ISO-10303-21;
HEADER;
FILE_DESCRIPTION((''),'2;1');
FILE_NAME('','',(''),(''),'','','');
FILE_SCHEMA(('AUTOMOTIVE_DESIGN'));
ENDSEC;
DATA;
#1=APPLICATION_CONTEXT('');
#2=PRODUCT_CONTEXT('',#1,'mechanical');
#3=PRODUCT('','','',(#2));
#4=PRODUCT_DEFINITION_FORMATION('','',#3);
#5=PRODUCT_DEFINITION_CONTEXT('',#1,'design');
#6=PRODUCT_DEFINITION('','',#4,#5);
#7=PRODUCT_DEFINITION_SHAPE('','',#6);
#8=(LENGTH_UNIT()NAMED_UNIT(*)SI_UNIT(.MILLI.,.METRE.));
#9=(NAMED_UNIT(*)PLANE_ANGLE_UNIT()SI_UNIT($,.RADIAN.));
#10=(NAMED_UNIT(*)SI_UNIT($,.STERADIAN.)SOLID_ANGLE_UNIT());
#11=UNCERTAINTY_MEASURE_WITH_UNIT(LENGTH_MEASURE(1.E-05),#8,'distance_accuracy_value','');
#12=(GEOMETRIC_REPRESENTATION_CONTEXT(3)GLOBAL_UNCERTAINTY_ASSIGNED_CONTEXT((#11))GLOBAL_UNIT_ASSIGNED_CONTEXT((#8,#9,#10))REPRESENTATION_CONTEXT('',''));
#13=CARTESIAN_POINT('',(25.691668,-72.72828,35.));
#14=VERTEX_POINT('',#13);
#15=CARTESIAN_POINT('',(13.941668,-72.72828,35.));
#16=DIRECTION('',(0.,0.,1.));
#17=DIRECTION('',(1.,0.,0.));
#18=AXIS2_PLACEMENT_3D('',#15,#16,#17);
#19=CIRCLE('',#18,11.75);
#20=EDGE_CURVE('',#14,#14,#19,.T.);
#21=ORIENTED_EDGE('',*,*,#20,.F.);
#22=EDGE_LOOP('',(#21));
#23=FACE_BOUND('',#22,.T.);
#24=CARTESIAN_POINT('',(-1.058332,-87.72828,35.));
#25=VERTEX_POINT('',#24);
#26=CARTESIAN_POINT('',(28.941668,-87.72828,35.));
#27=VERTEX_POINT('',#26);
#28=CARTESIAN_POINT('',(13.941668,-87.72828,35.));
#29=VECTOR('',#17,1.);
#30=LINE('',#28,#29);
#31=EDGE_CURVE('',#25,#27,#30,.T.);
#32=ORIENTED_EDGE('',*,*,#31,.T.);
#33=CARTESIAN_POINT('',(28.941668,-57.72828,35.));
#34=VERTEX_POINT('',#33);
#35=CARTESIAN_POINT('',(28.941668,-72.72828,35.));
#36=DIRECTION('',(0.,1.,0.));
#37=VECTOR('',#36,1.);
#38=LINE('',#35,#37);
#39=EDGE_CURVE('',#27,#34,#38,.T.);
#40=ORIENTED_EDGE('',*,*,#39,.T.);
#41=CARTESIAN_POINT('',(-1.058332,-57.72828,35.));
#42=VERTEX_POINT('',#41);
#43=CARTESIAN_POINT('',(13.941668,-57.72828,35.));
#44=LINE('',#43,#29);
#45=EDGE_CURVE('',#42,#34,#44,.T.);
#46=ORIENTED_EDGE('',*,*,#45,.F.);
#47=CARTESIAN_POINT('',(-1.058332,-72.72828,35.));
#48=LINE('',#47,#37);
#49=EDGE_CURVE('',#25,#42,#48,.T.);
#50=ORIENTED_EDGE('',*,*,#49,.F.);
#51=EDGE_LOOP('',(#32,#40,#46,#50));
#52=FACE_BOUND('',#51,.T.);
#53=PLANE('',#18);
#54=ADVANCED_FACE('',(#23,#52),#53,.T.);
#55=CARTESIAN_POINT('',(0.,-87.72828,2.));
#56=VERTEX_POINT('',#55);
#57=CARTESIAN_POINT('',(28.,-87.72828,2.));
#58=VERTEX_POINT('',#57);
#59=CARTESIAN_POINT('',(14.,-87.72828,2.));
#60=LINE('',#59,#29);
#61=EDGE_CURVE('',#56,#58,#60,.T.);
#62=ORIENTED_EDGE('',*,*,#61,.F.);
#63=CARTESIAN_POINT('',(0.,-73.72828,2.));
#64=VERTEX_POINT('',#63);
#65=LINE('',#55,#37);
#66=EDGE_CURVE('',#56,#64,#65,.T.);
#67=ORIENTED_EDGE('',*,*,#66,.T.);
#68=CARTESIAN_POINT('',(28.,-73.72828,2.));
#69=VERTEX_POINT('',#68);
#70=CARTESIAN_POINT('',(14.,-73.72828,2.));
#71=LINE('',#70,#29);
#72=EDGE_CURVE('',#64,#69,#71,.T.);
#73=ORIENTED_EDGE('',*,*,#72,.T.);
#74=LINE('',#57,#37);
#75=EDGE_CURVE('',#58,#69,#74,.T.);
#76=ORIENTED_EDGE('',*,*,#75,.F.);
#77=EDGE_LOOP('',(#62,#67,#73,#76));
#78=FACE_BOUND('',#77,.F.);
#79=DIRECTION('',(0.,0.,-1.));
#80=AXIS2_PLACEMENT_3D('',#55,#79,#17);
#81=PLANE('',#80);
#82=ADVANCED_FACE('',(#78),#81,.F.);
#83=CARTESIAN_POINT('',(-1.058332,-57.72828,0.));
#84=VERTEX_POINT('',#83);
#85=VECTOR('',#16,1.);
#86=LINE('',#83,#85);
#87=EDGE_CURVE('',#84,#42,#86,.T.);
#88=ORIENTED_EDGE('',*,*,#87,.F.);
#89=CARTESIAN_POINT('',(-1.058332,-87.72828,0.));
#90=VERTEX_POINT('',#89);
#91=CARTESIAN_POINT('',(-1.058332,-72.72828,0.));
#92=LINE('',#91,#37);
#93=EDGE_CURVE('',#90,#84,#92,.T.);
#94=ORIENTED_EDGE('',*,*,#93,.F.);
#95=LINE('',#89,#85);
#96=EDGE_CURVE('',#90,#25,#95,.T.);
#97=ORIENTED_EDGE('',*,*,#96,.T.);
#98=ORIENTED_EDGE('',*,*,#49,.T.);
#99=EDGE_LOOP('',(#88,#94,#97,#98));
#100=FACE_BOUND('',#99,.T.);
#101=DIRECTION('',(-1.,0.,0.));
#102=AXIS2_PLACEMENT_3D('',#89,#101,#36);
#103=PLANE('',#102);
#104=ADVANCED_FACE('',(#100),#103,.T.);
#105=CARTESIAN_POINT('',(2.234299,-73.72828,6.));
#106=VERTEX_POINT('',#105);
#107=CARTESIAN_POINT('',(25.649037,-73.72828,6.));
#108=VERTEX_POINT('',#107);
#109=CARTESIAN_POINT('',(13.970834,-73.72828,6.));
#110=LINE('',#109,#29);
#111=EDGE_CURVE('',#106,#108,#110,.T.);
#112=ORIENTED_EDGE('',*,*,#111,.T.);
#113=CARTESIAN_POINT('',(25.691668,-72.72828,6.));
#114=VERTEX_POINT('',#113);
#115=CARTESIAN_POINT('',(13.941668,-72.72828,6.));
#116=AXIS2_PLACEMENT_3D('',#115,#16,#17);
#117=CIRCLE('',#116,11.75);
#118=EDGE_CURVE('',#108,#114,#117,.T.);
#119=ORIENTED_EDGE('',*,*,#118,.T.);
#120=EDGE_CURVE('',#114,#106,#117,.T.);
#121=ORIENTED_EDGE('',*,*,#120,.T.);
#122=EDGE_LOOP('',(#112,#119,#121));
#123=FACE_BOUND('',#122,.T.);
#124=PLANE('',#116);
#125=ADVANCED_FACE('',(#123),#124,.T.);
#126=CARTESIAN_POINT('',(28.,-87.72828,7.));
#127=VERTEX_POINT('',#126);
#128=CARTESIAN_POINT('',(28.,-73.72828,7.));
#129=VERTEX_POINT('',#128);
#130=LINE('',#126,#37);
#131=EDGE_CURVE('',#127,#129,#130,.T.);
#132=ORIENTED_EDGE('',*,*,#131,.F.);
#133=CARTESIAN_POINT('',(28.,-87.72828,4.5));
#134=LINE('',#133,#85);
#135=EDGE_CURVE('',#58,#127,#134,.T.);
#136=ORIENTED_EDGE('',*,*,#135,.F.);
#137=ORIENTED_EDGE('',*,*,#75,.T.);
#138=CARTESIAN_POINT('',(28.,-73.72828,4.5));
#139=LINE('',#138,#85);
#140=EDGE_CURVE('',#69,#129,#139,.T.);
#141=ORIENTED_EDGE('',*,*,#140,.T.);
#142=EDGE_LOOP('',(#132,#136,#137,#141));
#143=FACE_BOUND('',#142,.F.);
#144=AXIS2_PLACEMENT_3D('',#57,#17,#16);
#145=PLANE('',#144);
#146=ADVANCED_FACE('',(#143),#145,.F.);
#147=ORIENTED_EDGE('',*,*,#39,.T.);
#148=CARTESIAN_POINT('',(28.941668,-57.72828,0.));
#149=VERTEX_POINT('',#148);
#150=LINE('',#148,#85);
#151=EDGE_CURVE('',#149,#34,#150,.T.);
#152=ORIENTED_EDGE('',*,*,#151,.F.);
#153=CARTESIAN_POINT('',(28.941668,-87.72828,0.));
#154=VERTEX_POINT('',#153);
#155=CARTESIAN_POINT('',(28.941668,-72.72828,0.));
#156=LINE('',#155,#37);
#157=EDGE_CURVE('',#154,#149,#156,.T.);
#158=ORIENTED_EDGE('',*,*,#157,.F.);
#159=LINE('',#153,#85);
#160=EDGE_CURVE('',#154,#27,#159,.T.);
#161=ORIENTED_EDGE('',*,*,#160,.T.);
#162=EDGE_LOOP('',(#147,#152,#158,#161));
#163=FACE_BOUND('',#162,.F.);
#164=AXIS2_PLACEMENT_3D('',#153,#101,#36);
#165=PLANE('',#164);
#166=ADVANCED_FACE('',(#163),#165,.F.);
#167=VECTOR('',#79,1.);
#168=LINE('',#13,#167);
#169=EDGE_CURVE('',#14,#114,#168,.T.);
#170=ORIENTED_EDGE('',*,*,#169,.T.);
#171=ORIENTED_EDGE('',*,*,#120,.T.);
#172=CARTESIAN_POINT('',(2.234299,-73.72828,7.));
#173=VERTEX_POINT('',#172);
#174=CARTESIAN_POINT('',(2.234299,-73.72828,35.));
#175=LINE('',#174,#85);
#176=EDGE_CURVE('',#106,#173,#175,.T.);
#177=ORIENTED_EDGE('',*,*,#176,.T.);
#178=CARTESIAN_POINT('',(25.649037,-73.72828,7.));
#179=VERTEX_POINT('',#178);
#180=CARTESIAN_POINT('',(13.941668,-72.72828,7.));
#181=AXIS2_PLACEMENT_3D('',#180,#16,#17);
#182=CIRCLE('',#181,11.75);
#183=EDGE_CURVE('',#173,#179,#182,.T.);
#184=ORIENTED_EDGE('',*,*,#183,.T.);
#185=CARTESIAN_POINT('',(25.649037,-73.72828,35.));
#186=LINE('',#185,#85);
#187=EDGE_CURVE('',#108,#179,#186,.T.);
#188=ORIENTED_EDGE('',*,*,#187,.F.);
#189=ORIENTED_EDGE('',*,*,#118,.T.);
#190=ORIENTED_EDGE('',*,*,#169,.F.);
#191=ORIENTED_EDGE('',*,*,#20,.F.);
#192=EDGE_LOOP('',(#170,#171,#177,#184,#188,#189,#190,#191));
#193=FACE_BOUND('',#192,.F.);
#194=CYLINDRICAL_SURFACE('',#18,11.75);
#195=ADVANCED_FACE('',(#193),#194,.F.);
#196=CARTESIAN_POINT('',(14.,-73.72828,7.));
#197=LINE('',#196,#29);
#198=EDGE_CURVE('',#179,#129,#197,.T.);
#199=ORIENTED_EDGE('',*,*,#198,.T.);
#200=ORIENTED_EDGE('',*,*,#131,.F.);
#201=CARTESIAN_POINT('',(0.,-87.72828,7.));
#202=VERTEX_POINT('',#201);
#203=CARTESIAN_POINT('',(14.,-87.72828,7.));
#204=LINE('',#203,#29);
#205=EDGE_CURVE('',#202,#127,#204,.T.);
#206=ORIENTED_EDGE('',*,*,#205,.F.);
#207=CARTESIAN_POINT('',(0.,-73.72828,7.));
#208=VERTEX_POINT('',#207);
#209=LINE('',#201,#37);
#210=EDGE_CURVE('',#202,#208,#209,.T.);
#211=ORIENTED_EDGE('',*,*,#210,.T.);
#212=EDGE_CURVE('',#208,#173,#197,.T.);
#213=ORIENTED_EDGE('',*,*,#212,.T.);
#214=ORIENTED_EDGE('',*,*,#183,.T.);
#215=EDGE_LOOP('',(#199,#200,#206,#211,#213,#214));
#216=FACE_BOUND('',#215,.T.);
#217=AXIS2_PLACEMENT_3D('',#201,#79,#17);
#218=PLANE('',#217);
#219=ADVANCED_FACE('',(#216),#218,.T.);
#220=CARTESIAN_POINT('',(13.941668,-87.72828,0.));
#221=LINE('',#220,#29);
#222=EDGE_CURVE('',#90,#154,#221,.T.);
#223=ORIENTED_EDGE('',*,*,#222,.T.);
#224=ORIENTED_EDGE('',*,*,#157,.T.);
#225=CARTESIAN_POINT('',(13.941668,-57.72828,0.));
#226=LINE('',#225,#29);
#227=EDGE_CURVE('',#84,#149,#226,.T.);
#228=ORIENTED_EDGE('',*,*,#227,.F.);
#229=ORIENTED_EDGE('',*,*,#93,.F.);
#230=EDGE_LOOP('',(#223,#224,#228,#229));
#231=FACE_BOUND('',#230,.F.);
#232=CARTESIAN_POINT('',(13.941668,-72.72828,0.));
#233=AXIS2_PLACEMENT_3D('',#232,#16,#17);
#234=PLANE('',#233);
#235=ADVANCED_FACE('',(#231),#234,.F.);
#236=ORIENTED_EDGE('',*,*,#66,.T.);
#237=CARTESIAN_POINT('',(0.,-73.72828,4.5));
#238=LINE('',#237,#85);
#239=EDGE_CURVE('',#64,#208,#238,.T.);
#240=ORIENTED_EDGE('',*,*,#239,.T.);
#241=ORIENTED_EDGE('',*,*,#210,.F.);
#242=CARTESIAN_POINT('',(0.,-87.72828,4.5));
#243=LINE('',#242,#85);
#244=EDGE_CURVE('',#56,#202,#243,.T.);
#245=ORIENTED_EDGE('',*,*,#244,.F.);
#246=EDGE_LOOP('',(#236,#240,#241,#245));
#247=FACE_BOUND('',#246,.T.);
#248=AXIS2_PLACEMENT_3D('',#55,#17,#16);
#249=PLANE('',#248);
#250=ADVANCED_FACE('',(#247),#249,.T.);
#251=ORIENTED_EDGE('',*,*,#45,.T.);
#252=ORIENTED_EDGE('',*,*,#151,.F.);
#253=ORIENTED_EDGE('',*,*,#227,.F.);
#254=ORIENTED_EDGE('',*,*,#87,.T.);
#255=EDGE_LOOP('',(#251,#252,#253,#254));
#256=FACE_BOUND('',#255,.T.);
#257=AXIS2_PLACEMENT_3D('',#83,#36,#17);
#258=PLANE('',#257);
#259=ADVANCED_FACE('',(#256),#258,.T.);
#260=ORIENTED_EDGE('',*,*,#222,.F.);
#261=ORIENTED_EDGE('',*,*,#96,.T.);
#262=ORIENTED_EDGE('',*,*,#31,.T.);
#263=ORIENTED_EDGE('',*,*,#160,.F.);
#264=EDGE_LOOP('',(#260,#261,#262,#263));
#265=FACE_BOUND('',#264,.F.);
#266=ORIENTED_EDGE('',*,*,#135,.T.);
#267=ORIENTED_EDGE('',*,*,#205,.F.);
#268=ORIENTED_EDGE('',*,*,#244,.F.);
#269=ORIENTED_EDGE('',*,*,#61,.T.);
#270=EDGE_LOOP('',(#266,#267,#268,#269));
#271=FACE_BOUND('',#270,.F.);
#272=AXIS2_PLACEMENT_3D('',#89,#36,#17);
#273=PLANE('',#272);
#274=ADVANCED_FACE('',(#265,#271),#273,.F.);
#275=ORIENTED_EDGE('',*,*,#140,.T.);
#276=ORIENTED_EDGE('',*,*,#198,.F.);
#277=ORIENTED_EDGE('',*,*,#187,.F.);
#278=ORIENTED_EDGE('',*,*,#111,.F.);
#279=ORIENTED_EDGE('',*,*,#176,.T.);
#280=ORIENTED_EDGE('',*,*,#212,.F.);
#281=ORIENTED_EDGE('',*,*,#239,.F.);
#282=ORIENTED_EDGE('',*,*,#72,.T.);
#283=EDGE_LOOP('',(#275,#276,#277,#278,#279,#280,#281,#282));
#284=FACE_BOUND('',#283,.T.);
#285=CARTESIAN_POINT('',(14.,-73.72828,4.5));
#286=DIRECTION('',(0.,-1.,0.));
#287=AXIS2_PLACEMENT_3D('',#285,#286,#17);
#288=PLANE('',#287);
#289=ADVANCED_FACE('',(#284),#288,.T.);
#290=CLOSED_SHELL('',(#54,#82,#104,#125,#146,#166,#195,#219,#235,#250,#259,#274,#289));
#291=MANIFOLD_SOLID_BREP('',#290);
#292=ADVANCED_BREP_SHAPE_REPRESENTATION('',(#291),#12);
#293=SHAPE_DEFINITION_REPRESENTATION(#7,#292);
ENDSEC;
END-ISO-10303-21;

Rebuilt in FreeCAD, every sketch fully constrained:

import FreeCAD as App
import Part
import Sketcher

V = App.Vector

doc = App.newDocument("Part")
body = doc.addObject("PartDesign::Body", "Body")

# Sketch on XY plane
sketch1 = doc.addObject("Sketcher::SketchObject", "Sketch")
body.addObject(sketch1)
sketch1.AttachmentSupport = (doc.XY_Plane, [""])
sketch1.MapMode = "FlatFace"
sketch1.addGeometry(Part.LineSegment(V(-1, -58, 0), V(-1, -88, 0)), False)
sketch1.addGeometry(Part.LineSegment(V(-1, -88, 0), V(29, -88, 0)), False)
sketch1.addGeometry(Part.LineSegment(V(29, -88, 0), V(29, -58, 0)), False)
sketch1.addGeometry(Part.LineSegment(V(29, -58, 0), V(-1, -58, 0)), False)
sketch1.addConstraint(Sketcher.Constraint("Coincident", 0, 2, 1, 1))
sketch1.addConstraint(Sketcher.Constraint("Coincident", 1, 2, 2, 1))
sketch1.addConstraint(Sketcher.Constraint("Coincident", 2, 2, 3, 1))
sketch1.addConstraint(Sketcher.Constraint("Coincident", 3, 2, 0, 1))
sketch1.addConstraint(Sketcher.Constraint("Vertical", 0))
sketch1.addConstraint(Sketcher.Constraint("Horizontal", 1))
sketch1.addConstraint(Sketcher.Constraint("Vertical", 2))
sketch1.addConstraint(Sketcher.Constraint("Horizontal", 3))
sketch1.addConstraint(Sketcher.Constraint("Equal", 3, 0))
sketch1.addConstraint(Sketcher.Constraint("DistanceX", 1, 1, 1, 2, 30.0))
sketch1.addConstraint(Sketcher.Constraint("DistanceY", 0, 2, -1, 1, 87.72828))
sketch1.addConstraint(Sketcher.Constraint("DistanceX", -1, 1, 1, 2, 28.941668))
pad1 = doc.addObject("PartDesign::Pad", "Pad")
body.addObject(pad1)
pad1.Profile = sketch1
pad1.Length = 35

# Sketch on XY plane
sketch2 = doc.addObject("Sketcher::SketchObject", "Sketch001")
body.addObject(sketch2)
sketch2.AttachmentSupport = (doc.XY_Plane, [""])
sketch2.MapMode = "FlatFace"
sketch2.AttachmentOffset = App.Placement(V(0, 0, 35), App.Rotation())
sketch2.addGeometry(Part.Circle(V(14, -73, 0), V(0, 0, 1), 12), False)
sketch2.addConstraint(Sketcher.Constraint("Diameter", 0, 23.5))
sketch2.addConstraint(Sketcher.Constraint("DistanceY", 0, 3, -1, 1, 72.72828))
sketch2.addConstraint(Sketcher.Constraint("DistanceX", -1, 1, 0, 3, 13.941668))
pocket1 = doc.addObject("PartDesign::Pocket", "Pocket")
body.addObject(pocket1)
pocket1.Profile = sketch2
pocket1.Length = 29

# Sketch on XZ plane
sketch3 = doc.addObject("Sketcher::SketchObject", "Sketch002")
body.addObject(sketch3)
sketch3.AttachmentSupport = (doc.XZ_Plane, [""])
sketch3.MapMode = "FlatFace"
sketch3.AttachmentOffset = App.Placement(V(0, 0, 87.72828), App.Rotation())
sketch3.addGeometry(Part.LineSegment(V(0, 7, 0), V(0, 2, 0)), False)
sketch3.addGeometry(Part.LineSegment(V(0, 2, 0), V(28, 2, 0)), False)
sketch3.addGeometry(Part.LineSegment(V(28, 2, 0), V(28, 7, 0)), False)
sketch3.addGeometry(Part.LineSegment(V(28, 7, 0), V(0, 7, 0)), False)
sketch3.addConstraint(Sketcher.Constraint("Coincident", 0, 2, 1, 1))
sketch3.addConstraint(Sketcher.Constraint("Coincident", 1, 2, 2, 1))
sketch3.addConstraint(Sketcher.Constraint("Coincident", 2, 2, 3, 1))
sketch3.addConstraint(Sketcher.Constraint("Coincident", 3, 2, 0, 1))
sketch3.addConstraint(Sketcher.Constraint("Vertical", 0))
sketch3.addConstraint(Sketcher.Constraint("Horizontal", 1))
sketch3.addConstraint(Sketcher.Constraint("Vertical", 2))
sketch3.addConstraint(Sketcher.Constraint("Horizontal", 3))
sketch3.addConstraint(Sketcher.Constraint("PointOnObject", 0, 2, -2))
sketch3.addConstraint(Sketcher.Constraint("DistanceX", 1, 1, 1, 2, 28.0))
sketch3.addConstraint(Sketcher.Constraint("DistanceY", 0, 2, 0, 1, 5.0))
sketch3.addConstraint(Sketcher.Constraint("DistanceY", -1, 1, 0, 2, 2.0))
pocket2 = doc.addObject("PartDesign::Pocket", "Pocket001")
body.addObject(pocket2)
pocket2.Profile = sketch3
pocket2.Length = 14

doc.recompute()
